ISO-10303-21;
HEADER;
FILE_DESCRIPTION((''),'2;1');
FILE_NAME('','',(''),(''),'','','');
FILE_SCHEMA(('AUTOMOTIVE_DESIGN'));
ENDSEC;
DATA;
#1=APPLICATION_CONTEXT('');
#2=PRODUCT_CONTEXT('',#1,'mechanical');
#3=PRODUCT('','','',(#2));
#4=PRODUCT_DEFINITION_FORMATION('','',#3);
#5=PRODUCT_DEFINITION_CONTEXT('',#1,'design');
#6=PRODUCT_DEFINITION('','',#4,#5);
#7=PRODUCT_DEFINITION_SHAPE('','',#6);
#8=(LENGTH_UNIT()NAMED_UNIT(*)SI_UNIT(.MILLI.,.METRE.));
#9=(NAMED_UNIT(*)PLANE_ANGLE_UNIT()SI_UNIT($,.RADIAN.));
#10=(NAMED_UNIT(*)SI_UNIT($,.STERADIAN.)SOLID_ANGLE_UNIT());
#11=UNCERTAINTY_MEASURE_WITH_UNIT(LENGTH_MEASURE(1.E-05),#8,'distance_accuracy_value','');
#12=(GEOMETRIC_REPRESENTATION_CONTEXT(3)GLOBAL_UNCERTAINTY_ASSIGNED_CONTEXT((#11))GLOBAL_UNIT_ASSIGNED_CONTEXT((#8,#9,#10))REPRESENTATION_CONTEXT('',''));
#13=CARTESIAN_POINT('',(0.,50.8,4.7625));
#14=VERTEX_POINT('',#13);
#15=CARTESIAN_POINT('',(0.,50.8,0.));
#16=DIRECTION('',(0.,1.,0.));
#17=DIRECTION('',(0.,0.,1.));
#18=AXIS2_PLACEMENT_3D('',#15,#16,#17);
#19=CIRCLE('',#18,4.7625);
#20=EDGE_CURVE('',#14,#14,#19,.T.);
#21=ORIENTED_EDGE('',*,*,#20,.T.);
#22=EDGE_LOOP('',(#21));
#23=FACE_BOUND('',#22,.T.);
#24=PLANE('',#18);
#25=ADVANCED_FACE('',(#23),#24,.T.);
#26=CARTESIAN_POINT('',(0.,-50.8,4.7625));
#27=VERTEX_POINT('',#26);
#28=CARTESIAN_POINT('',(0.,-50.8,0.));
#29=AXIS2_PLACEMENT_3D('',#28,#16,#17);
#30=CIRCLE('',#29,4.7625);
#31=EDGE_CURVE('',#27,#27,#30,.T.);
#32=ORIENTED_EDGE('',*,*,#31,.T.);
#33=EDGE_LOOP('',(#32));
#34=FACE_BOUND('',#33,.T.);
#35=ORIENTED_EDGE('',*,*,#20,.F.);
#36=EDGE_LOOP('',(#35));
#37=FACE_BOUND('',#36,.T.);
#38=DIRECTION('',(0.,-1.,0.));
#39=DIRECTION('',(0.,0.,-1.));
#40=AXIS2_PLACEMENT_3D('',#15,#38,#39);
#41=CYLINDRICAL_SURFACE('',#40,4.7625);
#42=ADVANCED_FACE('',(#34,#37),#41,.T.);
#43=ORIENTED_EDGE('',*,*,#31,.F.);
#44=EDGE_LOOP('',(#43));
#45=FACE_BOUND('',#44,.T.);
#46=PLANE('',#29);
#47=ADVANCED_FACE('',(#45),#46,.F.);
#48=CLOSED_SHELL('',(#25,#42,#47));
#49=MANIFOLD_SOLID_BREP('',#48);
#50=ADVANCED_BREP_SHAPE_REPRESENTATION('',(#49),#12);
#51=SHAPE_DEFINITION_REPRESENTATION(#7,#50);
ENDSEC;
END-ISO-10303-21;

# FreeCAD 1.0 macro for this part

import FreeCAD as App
import Part
import Sketcher
Q = App.Units.Quantity

doc = App.newDocument("Part")
params = doc.addObject("Spreadsheet::Sheet", "Params")
for row, (alias, value) in enumerate([
    ("sketch1_diameter", "0.375 in"),
    ("pad1_length", "4 in"),
], start=1):
    params.set(f"A{row}", alias)
    params.set(f"B{row}", "=" + value)
    params.setAlias(f"B{row}", alias)

body = doc.addObject("PartDesign::Body", "Body")

# Sketch on XZ plane
sketch1 = body.newObject("Sketcher::SketchObject", "Sketch")
sketch1.AttachmentSupport = (doc.getObject("XZ_Plane"), [""])
sketch1.MapMode = "FlatFace"
sketch1.addGeometry(Part.Circle(App.Vector(0, 0, 0), App.Vector(0, 0, 1), 4.7625), False)
sketch1.addConstraint(Sketcher.Constraint("Coincident", 0, 3, -1, 1))
sketch1.addConstraint(Sketcher.Constraint("Diameter", 0, Q("0.375 in")))
sketch1.setExpression("Constraints[1]", "Params.sketch1_diameter")
pad1 = body.newObject("PartDesign::Pad", "Pad")
pad1.Profile = sketch1
pad1.setExpression("Length", "Params.pad1_length")
pad1.Midplane = True

doc.recompute()
